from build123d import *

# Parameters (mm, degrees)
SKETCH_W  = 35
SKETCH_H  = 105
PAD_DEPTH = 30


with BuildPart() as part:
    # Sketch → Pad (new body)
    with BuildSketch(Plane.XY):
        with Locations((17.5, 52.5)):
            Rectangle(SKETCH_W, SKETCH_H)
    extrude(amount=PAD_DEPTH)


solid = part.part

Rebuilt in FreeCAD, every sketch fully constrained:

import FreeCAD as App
import Part
import Sketcher

V = App.Vector
Q = App.Units.Quantity


def add_polygon(sketch, points):
    """Adds a closed chain of lines whose ends are joined by coincident constraints."""
    first, n = sketch.GeometryCount, len(points)
    for a, b in zip(points, points[1:] + points[:1]):
        sketch.addGeometry(Part.LineSegment(App.Vector(*a, 0), App.Vector(*b, 0)), False)
    for i in range(n):
        sketch.addConstraint(Sketcher.Constraint("Coincident", first + i, 2, first + (i + 1) % n, 1))

doc = App.newDocument("Part")
body = doc.addObject("PartDesign::Body", "Body")

# Sketch on XY plane
sketch1 = body.newObject("Sketcher::SketchObject", "Sketch")
sketch1.AttachmentSupport = (doc.getObject("XY_Plane"), [""])
sketch1.MapMode = "FlatFace"
add_polygon(sketch1, [(0, 105), (0, 0), (35, 0), (35, 105)])  # lines 0-3
sketch1.addConstraint(Sketcher.Constraint("Vertical", 0))
sketch1.addConstraint(Sketcher.Constraint("Horizontal", 1))
sketch1.addConstraint(Sketcher.Constraint("Vertical", 2))
sketch1.addConstraint(Sketcher.Constraint("Horizontal", 3))
sketch1.addConstraint(Sketcher.Constraint("Coincident", 0, 2, -1, 1))
sketch1.addConstraint(Sketcher.Constraint("DistanceX", 1, 1, 1, 2, Q("35 mm")))
sketch1.addConstraint(Sketcher.Constraint("DistanceY", 0, 2, 0, 1, Q("105 mm")))
pad1 = body.newObject("PartDesign::Pad", "Pad")
pad1.Profile = sketch1
pad1.Length = 30

doc.recompute()
